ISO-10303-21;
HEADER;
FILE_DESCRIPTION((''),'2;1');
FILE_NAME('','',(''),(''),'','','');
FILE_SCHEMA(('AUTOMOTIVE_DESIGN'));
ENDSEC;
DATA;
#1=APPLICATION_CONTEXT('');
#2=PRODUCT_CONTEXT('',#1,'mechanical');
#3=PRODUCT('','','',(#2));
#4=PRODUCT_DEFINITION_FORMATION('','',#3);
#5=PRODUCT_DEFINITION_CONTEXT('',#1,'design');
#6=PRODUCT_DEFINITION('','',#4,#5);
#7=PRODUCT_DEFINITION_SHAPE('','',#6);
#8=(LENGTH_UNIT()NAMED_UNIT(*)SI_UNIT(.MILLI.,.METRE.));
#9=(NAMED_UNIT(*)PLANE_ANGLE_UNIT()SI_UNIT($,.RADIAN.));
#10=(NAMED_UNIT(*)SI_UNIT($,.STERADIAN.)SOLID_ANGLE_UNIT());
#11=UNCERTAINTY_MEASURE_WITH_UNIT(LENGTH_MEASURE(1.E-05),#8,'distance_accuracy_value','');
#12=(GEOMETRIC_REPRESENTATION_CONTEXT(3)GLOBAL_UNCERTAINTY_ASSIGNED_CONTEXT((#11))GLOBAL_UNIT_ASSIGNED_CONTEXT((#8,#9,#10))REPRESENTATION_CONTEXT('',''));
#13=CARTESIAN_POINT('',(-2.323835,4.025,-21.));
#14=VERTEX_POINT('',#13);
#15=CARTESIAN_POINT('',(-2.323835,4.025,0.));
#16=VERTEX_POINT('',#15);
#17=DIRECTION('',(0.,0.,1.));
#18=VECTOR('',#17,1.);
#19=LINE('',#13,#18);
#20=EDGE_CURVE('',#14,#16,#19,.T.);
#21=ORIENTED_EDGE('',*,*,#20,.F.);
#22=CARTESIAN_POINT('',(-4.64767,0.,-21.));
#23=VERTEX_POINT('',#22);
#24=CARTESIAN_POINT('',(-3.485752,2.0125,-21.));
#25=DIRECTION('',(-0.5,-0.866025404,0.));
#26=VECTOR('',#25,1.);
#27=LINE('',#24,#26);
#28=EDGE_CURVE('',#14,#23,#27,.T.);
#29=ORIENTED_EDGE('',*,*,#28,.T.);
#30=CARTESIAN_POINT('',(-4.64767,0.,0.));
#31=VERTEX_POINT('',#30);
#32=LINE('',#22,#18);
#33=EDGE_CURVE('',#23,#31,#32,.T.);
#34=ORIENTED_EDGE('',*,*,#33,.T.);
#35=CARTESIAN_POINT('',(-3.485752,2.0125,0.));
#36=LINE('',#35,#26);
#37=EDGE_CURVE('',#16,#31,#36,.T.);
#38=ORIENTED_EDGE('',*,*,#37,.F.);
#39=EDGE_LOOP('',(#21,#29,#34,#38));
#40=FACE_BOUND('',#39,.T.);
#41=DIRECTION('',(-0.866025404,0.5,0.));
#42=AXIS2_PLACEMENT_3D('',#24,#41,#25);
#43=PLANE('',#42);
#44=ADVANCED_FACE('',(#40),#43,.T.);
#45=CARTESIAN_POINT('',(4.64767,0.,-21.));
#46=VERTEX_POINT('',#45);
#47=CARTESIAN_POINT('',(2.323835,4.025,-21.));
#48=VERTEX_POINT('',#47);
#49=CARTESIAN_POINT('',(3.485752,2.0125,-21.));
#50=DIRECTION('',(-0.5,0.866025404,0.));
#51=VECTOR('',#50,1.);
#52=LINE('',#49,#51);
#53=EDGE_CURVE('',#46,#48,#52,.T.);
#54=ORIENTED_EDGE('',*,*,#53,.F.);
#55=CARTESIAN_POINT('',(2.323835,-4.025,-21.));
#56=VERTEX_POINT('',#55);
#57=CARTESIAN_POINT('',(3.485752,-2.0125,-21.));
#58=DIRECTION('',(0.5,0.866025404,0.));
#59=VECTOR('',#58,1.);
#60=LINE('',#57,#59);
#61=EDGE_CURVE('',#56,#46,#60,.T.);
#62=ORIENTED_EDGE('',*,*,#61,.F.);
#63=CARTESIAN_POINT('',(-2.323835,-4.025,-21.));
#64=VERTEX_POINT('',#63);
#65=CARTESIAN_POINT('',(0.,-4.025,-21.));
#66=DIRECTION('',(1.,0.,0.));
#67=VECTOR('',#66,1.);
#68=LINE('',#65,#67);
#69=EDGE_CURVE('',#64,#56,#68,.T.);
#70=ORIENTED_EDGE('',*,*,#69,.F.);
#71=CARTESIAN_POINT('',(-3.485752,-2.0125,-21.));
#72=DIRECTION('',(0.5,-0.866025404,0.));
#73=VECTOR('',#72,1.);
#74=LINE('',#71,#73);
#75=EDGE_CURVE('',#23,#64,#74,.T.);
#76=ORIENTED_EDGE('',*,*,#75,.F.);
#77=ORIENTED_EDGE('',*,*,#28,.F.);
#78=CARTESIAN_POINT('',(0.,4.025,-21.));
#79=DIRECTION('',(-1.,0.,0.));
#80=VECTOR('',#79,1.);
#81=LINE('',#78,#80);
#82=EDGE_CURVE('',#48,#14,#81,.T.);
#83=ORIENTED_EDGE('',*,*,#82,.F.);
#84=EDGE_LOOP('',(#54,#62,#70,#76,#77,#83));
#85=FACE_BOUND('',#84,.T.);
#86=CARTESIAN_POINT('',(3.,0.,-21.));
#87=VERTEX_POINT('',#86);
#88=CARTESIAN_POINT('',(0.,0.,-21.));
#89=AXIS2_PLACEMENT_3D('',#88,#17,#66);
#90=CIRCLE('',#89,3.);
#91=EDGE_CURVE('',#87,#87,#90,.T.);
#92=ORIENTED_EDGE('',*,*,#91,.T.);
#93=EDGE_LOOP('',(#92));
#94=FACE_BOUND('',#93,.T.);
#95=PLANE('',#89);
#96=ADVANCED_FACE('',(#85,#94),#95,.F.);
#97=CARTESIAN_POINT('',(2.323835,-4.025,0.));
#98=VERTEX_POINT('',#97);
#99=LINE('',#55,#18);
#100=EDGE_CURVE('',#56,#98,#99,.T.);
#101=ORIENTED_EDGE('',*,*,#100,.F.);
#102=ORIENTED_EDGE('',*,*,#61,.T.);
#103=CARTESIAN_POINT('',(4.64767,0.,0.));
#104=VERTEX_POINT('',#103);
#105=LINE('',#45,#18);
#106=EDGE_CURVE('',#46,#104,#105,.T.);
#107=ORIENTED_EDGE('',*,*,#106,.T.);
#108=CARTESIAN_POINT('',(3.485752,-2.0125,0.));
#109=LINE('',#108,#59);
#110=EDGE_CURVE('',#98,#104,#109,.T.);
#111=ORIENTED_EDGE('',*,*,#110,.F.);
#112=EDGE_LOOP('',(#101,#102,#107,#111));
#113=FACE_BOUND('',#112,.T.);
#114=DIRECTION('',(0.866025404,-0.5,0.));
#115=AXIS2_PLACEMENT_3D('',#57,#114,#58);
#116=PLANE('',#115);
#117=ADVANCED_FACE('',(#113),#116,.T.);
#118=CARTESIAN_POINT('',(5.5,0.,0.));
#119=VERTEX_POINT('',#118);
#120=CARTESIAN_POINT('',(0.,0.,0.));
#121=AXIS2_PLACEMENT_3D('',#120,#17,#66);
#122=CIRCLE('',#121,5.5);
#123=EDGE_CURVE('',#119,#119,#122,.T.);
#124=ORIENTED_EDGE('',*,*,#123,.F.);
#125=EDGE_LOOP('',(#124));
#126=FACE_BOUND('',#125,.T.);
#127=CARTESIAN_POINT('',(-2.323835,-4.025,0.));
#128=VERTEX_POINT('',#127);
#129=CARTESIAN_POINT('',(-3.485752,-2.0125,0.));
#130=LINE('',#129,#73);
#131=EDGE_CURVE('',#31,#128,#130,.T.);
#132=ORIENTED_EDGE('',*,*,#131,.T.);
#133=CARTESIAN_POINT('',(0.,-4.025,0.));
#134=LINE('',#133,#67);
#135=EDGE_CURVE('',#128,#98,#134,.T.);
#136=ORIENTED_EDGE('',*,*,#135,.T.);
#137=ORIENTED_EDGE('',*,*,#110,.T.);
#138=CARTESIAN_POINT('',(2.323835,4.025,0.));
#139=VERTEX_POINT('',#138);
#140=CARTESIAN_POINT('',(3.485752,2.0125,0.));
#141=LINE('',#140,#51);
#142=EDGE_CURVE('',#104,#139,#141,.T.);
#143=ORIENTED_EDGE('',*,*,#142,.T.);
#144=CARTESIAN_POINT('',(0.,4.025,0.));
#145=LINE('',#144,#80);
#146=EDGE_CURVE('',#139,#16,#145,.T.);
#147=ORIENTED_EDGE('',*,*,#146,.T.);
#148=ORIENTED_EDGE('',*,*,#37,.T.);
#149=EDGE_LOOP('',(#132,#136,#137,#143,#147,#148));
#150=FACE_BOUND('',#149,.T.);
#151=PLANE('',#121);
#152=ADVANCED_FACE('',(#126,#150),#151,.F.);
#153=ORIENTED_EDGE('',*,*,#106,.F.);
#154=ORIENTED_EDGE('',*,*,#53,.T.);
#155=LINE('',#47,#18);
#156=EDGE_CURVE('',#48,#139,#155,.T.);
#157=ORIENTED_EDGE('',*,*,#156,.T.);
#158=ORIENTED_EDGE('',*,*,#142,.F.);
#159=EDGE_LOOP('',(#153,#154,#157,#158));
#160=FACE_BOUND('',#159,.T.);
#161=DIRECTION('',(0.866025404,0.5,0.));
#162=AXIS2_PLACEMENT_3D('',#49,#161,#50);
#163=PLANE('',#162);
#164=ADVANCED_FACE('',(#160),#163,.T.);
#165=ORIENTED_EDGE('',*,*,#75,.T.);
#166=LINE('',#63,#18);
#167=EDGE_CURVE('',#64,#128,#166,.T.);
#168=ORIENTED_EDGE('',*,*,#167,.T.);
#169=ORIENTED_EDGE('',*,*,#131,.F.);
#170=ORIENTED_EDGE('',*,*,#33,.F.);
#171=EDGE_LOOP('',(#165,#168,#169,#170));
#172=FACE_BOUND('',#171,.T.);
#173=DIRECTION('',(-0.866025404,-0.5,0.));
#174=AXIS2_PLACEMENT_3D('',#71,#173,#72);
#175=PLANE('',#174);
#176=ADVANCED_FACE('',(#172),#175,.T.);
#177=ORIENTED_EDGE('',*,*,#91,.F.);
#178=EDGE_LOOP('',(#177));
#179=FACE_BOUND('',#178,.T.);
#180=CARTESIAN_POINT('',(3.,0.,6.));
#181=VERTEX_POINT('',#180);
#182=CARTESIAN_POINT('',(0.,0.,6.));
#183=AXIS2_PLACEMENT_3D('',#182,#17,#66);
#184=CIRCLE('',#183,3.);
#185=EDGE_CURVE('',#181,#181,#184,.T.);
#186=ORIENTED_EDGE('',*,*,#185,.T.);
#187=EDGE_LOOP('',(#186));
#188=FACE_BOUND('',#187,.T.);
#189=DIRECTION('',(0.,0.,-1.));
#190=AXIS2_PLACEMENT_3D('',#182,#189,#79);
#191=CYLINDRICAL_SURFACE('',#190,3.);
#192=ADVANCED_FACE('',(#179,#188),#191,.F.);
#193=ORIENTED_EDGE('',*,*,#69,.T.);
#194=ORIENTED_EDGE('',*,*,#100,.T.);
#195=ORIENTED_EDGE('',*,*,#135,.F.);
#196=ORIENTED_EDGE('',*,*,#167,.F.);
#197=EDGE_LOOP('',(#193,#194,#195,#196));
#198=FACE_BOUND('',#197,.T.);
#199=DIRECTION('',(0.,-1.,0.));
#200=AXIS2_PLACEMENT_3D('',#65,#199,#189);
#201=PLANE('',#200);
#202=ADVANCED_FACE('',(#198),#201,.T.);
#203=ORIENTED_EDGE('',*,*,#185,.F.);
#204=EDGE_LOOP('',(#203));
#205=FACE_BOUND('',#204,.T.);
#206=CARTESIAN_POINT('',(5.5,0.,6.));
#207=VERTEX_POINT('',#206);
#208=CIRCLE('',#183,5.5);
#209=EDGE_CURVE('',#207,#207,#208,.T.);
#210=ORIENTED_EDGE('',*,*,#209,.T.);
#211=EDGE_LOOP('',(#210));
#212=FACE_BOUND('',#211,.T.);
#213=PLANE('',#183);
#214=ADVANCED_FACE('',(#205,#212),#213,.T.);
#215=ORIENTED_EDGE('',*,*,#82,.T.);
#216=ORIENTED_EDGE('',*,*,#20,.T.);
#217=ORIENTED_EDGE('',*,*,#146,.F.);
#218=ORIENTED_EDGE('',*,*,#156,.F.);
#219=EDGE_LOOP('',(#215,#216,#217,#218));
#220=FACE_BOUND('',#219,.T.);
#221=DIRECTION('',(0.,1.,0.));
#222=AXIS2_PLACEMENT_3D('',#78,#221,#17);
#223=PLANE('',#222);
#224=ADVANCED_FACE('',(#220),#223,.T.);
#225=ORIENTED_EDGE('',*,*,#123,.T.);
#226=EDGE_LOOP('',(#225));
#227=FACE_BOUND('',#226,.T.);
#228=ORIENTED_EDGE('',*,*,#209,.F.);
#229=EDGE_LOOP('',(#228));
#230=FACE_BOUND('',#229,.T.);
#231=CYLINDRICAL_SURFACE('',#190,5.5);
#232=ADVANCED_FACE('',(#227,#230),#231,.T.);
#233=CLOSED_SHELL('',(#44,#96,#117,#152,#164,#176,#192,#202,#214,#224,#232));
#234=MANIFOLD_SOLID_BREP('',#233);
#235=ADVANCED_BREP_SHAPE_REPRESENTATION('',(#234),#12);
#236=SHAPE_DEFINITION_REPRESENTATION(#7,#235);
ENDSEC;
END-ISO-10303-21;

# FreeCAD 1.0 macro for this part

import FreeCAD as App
import Part
import Sketcher

V = App.Vector
Q = App.Units.Quantity

doc = App.newDocument("Part")
body = doc.addObject("PartDesign::Body", "Body")

# Sketch on XY plane
sketch1 = body.newObject("Sketcher::SketchObject", "Sketch")
sketch1.AttachmentSupport = (doc.getObject("XY_Plane"), [""])
sketch1.MapMode = "FlatFace"
sketch1.addGeometry([
    Part.Circle(V(0, 0, 0), V(0, 0, 1), 5.5),
    Part.Circle(V(0, 0, 0), V(0, 0, 1), 3),
], False)
sketch1.addConstraint([
    Sketcher.Constraint("Coincident", 0, 3, -1, 1),
    Sketcher.Constraint("Coincident", 1, 3, -1, 1),
    Sketcher.Constraint("Diameter", 0, 11.0),
    Sketcher.Constraint("Diameter", 1, 6.0),
])
pad1 = body.newObject("PartDesign::Pad", "Pad")
pad1.Profile = sketch1
pad1.Length = 6

# Sketch on XY plane
sketch2 = body.newObject("Sketcher::SketchObject", "Sketch001")
sketch2.AttachmentSupport = (doc.getObject("XY_Plane"), [""])
sketch2.MapMode = "FlatFace"
sketch2.addGeometry([
    Part.LineSegment(V(4.6, 0, 0), V(2.3, 4, 0)),  # 0
    Part.LineSegment(V(2.3, 4, 0), V(-2.3, 4, 0)),  # 1
    Part.LineSegment(V(-2.3, 4, 0), V(-4.6, 0, 0)),  # 2
    Part.LineSegment(V(-4.6, 0, 0), V(-2.3, -4, 0)),  # 3
    Part.LineSegment(V(-2.3, -4, 0), V(2.3, -4, 0)),  # 4
    Part.LineSegment(V(2.3, -4, 0), V(4.6, 0, 0)),  # 5
    Part.Circle(V(0, 0, 0), V(0, 0, 1), 3),  # 6
], False)
sketch2.addConstraint([
    Sketcher.Constraint("Coincident", 0, 2, 1, 1),
    Sketcher.Constraint("Coincident", 1, 2, 2, 1),
    Sketcher.Constraint("Coincident", 2, 2, 3, 1),
    Sketcher.Constraint("Coincident", 3, 2, 4, 1),
    Sketcher.Constraint("Coincident", 4, 2, 5, 1),
    Sketcher.Constraint("Coincident", 5, 2, 0, 1),
    Sketcher.Constraint("Horizontal", 1),
    Sketcher.Constraint("Horizontal", 4),
    Sketcher.Constraint("Coincident", 6, 3, -1, 1),
    Sketcher.Constraint("Symmetric", 0, 2, 3, 2, -1, 1),
    Sketcher.Constraint("Symmetric", 2, 2, 5, 2, -1, 1),
    Sketcher.Constraint("PointOnObject", 2, 2, -1),
    Sketcher.Constraint("Parallel", 2, 5),
    Sketcher.Constraint("Vertical", 1, 2, 3, 2),
    Sketcher.Constraint("Diameter", 6, 6.0),
    Sketcher.Constraint("Angle", 0, Q("120 deg")),
    Sketcher.Constraint("DistanceY", 3, 2, 1, 2, 8.05),
    Sketcher.Constraint("DistanceX", 1, 2, 1, 1, 4.64767),
])
pad2 = body.newObject("PartDesign::Pad", "Pad001")
pad2.Profile = sketch2
pad2.Length = 21
pad2.Reversed = True

doc.recompute()
